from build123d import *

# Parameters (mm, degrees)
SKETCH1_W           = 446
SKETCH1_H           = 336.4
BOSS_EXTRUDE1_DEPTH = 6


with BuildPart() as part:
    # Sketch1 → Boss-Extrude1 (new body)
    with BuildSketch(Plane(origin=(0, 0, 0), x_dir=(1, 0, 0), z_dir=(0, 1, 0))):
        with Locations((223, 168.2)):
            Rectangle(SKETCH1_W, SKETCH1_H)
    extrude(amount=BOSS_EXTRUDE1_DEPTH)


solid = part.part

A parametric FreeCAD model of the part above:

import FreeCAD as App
import Part
import Sketcher
Q = App.Units.Quantity


def add_polygon(sketch, points):
    """Adds a closed chain of lines whose ends are joined by coincident constraints."""
    first, n = sketch.GeometryCount, len(points)
    for a, b in zip(points, points[1:] + points[:1]):
        sketch.addGeometry(Part.LineSegment(App.Vector(*a, 0), App.Vector(*b, 0)), False)
    for i in range(n):
        sketch.addConstraint(Sketcher.Constraint("Coincident", first + i, 2, first + (i + 1) % n, 1))

doc = App.newDocument("Part")
body = doc.addObject("PartDesign::Body", "Body")

# Sketch on XZ plane
sketch1 = body.newObject("Sketcher::SketchObject", "Sketch")
sketch1.AttachmentSupport = (doc.getObject("XZ_Plane"), [""])
sketch1.MapMode = "FlatFace"
add_polygon(sketch1, [(0, -336.4), (0, 0), (446, 0), (446, -336.4)])  # lines 0-3
sketch1.addConstraint([
    Sketcher.Constraint("Vertical", 0),
    Sketcher.Constraint("Horizontal", 1),
    Sketcher.Constraint("Vertical", 2),
    Sketcher.Constraint("Horizontal", 3),
    Sketcher.Constraint("Coincident", 0, 2, -1, 1),
    Sketcher.Constraint("DistanceX", 1, 1, 1, 2, Q("446 mm")),
    Sketcher.Constraint("DistanceY", 0, 1, 0, 2, Q("336.4 mm")),
])
pad1 = body.newObject("PartDesign::Pad", "Pad")
pad1.Profile = sketch1
pad1.Length = 6
pad1.Reversed = True

doc.recompute()
